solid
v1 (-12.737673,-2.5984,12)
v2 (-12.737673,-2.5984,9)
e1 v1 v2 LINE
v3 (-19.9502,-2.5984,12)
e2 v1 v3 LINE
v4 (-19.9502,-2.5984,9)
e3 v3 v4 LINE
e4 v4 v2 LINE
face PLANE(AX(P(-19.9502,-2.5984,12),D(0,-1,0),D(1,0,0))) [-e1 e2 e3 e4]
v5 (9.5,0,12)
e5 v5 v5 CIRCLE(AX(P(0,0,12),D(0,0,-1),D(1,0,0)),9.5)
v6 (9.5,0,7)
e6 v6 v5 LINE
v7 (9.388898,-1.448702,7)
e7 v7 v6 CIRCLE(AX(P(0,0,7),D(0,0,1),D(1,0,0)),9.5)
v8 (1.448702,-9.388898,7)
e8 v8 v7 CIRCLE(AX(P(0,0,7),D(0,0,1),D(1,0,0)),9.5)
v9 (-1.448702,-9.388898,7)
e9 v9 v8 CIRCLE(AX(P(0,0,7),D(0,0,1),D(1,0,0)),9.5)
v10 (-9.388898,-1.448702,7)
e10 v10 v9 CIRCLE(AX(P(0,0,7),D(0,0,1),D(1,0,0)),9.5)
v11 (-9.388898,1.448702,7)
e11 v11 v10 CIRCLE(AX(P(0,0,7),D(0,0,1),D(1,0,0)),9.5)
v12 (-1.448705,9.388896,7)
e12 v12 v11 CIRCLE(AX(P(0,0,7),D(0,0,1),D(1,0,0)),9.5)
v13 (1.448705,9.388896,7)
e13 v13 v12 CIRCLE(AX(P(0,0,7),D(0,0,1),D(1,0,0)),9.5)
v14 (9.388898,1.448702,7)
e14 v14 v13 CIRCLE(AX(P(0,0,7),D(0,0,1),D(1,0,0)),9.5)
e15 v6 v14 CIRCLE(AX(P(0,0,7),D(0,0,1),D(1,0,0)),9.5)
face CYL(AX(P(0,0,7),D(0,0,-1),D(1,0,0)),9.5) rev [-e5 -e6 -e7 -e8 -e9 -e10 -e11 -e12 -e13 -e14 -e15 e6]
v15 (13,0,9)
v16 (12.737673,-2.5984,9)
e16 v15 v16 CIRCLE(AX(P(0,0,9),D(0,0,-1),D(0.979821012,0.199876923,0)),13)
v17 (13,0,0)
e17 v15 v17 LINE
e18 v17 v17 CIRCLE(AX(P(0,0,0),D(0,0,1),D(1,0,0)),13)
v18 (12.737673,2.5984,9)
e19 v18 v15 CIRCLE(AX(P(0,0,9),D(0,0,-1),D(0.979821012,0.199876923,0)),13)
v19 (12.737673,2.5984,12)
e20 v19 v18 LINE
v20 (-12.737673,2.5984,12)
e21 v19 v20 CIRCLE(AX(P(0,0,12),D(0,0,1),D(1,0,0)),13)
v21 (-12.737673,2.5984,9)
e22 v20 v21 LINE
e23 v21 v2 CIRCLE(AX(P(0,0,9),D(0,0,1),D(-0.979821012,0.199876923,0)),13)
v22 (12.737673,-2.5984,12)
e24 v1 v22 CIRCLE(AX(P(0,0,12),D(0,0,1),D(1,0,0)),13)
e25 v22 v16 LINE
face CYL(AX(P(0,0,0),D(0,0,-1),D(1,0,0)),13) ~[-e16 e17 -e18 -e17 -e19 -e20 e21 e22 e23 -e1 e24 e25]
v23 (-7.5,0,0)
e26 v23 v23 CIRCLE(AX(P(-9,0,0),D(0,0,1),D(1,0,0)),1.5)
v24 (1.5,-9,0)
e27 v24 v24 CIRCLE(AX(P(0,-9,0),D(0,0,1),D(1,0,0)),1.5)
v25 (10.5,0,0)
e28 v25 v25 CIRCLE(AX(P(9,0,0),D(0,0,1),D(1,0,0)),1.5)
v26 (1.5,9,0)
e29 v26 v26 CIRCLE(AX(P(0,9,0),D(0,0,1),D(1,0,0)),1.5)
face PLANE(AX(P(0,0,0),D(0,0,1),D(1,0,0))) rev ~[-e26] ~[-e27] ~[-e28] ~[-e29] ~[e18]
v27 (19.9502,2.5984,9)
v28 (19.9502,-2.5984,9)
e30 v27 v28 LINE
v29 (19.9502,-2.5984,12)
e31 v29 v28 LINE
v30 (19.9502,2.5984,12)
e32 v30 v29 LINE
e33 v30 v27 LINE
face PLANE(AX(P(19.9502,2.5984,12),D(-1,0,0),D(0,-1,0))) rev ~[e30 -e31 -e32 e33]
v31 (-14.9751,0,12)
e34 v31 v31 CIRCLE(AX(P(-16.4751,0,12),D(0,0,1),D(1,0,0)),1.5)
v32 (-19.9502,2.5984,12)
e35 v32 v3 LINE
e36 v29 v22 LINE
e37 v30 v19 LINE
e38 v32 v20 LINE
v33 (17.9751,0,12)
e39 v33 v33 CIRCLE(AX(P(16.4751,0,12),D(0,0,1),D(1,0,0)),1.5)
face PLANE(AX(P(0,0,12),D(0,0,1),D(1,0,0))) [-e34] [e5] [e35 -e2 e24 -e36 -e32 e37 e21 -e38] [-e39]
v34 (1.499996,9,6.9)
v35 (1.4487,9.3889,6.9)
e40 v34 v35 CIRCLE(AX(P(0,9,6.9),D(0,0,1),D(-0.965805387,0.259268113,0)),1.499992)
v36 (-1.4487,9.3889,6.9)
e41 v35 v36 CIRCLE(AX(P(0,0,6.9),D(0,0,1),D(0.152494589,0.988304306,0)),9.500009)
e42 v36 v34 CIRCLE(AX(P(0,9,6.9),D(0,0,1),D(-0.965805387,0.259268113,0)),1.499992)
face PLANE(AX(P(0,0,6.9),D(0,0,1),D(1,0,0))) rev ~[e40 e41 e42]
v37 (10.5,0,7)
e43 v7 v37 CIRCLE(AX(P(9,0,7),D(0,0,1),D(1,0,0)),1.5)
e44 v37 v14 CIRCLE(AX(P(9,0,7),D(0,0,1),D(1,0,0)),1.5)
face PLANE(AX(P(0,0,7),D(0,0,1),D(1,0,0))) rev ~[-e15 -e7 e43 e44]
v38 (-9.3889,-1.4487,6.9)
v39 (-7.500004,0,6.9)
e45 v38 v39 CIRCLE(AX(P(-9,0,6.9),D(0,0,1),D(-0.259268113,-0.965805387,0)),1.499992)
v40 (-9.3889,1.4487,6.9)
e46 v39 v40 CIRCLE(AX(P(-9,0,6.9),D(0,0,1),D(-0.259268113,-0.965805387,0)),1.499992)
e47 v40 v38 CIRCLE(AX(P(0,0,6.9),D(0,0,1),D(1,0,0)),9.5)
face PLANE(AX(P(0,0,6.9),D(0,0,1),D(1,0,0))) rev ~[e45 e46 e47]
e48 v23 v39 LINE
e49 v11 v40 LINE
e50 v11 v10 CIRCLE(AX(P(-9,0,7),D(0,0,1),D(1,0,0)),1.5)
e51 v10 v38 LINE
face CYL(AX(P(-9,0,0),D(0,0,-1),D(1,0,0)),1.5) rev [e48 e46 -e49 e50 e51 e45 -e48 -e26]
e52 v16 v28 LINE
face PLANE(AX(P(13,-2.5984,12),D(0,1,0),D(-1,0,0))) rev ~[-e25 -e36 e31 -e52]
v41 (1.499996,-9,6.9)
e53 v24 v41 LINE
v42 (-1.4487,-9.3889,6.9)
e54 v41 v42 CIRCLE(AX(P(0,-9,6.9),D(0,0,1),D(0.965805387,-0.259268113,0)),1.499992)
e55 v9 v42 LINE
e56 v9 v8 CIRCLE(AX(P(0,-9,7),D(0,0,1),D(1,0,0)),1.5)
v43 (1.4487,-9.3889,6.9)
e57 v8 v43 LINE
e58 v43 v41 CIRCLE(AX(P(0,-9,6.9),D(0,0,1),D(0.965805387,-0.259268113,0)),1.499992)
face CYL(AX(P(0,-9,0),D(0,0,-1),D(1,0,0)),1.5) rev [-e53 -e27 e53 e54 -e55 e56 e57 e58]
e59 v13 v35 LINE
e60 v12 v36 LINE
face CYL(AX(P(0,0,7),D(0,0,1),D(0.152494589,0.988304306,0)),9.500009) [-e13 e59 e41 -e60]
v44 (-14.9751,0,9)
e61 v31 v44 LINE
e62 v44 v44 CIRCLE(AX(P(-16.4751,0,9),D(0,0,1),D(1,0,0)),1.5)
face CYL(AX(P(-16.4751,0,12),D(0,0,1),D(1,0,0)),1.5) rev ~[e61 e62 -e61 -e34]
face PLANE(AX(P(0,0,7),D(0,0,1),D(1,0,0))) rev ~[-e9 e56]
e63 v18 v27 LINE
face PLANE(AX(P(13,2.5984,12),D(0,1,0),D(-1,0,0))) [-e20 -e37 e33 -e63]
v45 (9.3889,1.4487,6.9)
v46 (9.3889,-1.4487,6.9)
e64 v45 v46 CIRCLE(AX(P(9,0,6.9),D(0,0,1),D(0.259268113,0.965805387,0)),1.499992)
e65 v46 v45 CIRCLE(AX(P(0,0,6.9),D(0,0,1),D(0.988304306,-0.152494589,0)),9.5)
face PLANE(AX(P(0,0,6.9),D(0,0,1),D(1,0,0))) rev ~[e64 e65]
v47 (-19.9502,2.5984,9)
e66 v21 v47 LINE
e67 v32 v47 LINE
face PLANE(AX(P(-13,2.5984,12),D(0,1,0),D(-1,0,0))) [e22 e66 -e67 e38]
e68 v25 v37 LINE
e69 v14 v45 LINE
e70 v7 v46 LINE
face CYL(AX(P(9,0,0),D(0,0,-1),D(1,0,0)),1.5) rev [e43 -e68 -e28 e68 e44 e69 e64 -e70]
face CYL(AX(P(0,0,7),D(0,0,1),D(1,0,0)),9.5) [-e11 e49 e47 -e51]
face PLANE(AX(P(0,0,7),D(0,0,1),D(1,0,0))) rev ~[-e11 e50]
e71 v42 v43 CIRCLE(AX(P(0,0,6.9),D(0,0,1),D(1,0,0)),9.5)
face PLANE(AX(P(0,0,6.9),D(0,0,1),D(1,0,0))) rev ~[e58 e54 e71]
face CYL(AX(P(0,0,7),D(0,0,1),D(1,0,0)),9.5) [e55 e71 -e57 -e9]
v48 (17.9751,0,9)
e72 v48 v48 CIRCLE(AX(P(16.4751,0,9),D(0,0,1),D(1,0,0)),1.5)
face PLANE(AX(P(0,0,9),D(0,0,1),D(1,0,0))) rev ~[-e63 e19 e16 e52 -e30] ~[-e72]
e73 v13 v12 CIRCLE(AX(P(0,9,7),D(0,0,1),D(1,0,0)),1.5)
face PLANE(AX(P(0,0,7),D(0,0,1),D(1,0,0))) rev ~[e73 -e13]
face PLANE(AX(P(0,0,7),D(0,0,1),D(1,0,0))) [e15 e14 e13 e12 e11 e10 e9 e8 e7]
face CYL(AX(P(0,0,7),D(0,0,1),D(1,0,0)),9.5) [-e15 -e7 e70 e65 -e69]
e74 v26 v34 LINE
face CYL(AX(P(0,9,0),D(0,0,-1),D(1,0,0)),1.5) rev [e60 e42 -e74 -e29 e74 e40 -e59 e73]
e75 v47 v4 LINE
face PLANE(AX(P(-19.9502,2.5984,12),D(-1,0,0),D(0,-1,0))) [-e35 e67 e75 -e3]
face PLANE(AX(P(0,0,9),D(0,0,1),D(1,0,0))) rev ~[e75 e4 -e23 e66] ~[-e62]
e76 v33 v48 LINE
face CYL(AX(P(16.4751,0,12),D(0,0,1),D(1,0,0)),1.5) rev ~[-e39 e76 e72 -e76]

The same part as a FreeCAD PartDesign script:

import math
import FreeCAD as App
import Part
import Sketcher

V = App.Vector

doc = App.newDocument("Part")
body = doc.addObject("PartDesign::Body", "Body")

# Sketch on XY plane
sketch1 = body.newObject("Sketcher::SketchObject", "Sketch")
sketch1.AttachmentSupport = (doc.getObject("XY_Plane"), [""])
sketch1.MapMode = "FlatFace"
sketch1.addGeometry([
    Part.Circle(V(0, 0, 0), V(0, 0, 1), 13),  # 0
    Part.Circle(V(0, -9, 0), V(0, 0, 1), 1.5),  # 1
    Part.Circle(V(-9, 0, 0), V(0, 0, 1), 1.5),  # 2
    Part.Circle(V(9, 0, 0), V(0, 0, 1), 1.5),  # 3
    Part.Circle(V(0, 9, 0), V(0, 0, 1), 1.5),  # 4
], False)
sketch1.addConstraint([
    Sketcher.Constraint("Coincident", 0, 3, -1, 1),
    Sketcher.Constraint("Equal", 1, 2),
    Sketcher.Constraint("Equal", 2, 3),
    Sketcher.Constraint("Equal", 3, 4),
    Sketcher.Constraint("Symmetric", 2, 3, 3, 3, -1, 1),
    Sketcher.Constraint("Symmetric", 1, 3, 4, 3, -1, 1),
    Sketcher.Constraint("PointOnObject", 1, 3, -2),
    Sketcher.Constraint("PointOnObject", 2, 3, -1),
    Sketcher.Constraint("Diameter", 0, 26.0),
    Sketcher.Constraint("Diameter", 1, 3.0),
    Sketcher.Constraint("DistanceY", 1, 3, -1, 1, 9.0),
    Sketcher.Constraint("DistanceX", 2, 3, -1, 1, 9.0),
])
pad1 = body.newObject("PartDesign::Pad", "Pad")
pad1.Profile = sketch1
pad1.Length = 7

# Sketch on XY plane
sketch2 = body.newObject("Sketcher::SketchObject", "Sketch001")
sketch2.AttachmentSupport = (doc.getObject("XY_Plane"), [""])
sketch2.MapMode = "FlatFace"
sketch2.AttachmentOffset = App.Placement(V(0, 0, 7), App.Rotation())
sketch2.addGeometry([
    Part.Circle(V(0, 0, 0), V(0, 0, 1), 13),
    Part.Circle(V(0, 0, 0), V(0, 0, 1), 10),
], False)
sketch2.addConstraint([
    Sketcher.Constraint("Coincident", 0, 3, -1, 1),
    Sketcher.Constraint("Coincident", 1, 3, -1, 1),
    Sketcher.Constraint("Diameter", 1, 19.0),
    Sketcher.Constraint("Diameter", 0, 26.0),
])
pad2 = body.newObject("PartDesign::Pad", "Pad001")
pad2.Profile = sketch2
pad2.Length = 5

# Sketch on XY plane
sketch3 = body.newObject("Sketcher::SketchObject", "Sketch002")
sketch3.AttachmentSupport = (doc.getObject("XY_Plane"), [""])
sketch3.MapMode = "FlatFace"
sketch3.AttachmentOffset = App.Placement(V(0, 0, 7), App.Rotation())
sketch3.addGeometry([
    Part.ArcOfCircle(Part.Circle(V(0, 0, 0), V(0, 0, 1), 9.5), math.radians(81.23), math.radians(98.77)),  # 0
    Part.ArcOfCircle(Part.Circle(V(0, 9, 0), V(0, 0, 1), 1.5), math.radians(165), math.radians(375)),  # 1
    Part.ArcOfCircle(Part.Circle(V(-9, 0, 0), V(0, 0, 1), 1.5), math.radians(-105), math.radians(105)),  # 2
    Part.ArcOfCircle(Part.Circle(V(0, 0, 0), V(0, 0, 1), 9.5), math.radians(171.23), math.radians(188.77)),  # 3
    Part.ArcOfCircle(Part.Circle(V(0, 0, 0), V(0, 0, 1), 9.5), math.radians(-8.77), math.radians(8.77)),  # 4
    Part.ArcOfCircle(Part.Circle(V(9, 0, 0), V(0, 0, 1), 1.5), math.radians(75), math.radians(285)),  # 5
    Part.ArcOfCircle(Part.Circle(V(0, -9, 0), V(0, 0, 1), 1.5), math.radians(-15), math.radians(195)),  # 6
    Part.ArcOfCircle(Part.Circle(V(0, 0, 0), V(0, 0, 1), 9.5), math.radians(-98.77), math.radians(-81.23)),  # 7
], False)
sketch3.addConstraint([
    Sketcher.Constraint("Coincident", 0, 1, 1, 2),
    Sketcher.Constraint("Coincident", 1, 1, 0, 2),
    Sketcher.Constraint("Coincident", 2, 1, 3, 2),
    Sketcher.Constraint("Coincident", 3, 1, 2, 2),
    Sketcher.Constraint("Coincident", 4, 1, 5, 2),
    Sketcher.Constraint("Coincident", 5, 1, 4, 2),
    Sketcher.Constraint("Coincident", 6, 1, 7, 2),
    Sketcher.Constraint("Coincident", 7, 1, 6, 2),
    Sketcher.Constraint("Coincident", 0, 3, -1, 1),
    Sketcher.Constraint("Coincident", 3, 3, -1, 1),
    Sketcher.Constraint("Coincident", 4, 3, -1, 1),
    Sketcher.Constraint("Coincident", 7, 3, -1, 1),
    Sketcher.Constraint("Equal", 1, 2),
    Sketcher.Constraint("Equal", 0, 3),
    Sketcher.Constraint("Equal", 3, 4),
    Sketcher.Constraint("Equal", 2, 5),
    Sketcher.Constraint("Equal", 5, 6),
    Sketcher.Constraint("Equal", 4, 7),
    Sketcher.Constraint("Symmetric", 2, 3, 5, 3, -1, 1),
    Sketcher.Constraint("Symmetric", 1, 3, 6, 3, -1, 1),
    Sketcher.Constraint("PointOnObject", 1, 3, -2),
    Sketcher.Constraint("PointOnObject", 2, 3, -1),
    Sketcher.Constraint("Radius", 0, 9.5),
    Sketcher.Constraint("Radius", 1, 1.5),
    Sketcher.Constraint("DistanceY", -1, 1, 1, 3, 9.0),
    Sketcher.Constraint("DistanceX", 2, 3, -1, 1, 9.0),
])
pad3 = body.newObject("PartDesign::Pad", "Pad002")
pad3.Profile = sketch3
pad3.Length = 0.1
pad3.Reversed = True

# Sketch on XY plane
sketch4 = body.newObject("Sketcher::SketchObject", "Sketch003")
sketch4.AttachmentSupport = (doc.getObject("XY_Plane"), [""])
sketch4.MapMode = "FlatFace"
sketch4.AttachmentOffset = App.Placement(V(0, 0, 12), App.Rotation())
sketch4.addGeometry([
    Part.LineSegment(V(-20, 2.6, 0), V(-20, -2.6, 0)),  # 0
    Part.LineSegment(V(-20, -2.6, 0), V(-12.7, -2.6, 0)),  # 1
    Part.ArcOfCircle(Part.Circle(V(0, 0, 0), V(0, 0, 1), 13), math.radians(168), math.radians(192)),  # 2
    Part.LineSegment(V(-12.7, 2.6, 0), V(-20, 2.6, 0)),  # 3
    Part.Circle(V(-16.5, 0, 0), V(0, 0, 1), 1.5),  # 4
    Part.LineSegment(V(12.7, -2.6, 0), V(20, -2.6, 0)),  # 5
    Part.LineSegment(V(20, -2.6, 0), V(20, 2.6, 0)),  # 6
    Part.LineSegment(V(20, 2.6, 0), V(12.7, 2.6, 0)),  # 7
    Part.ArcOfCircle(Part.Circle(V(0, 0, 0), V(0, 0, 1), 13), math.radians(-12), math.radians(12)),  # 8
    Part.Circle(V(16.5, 0, 0), V(0, 0, 1), 1.5),  # 9
], False)
sketch4.addConstraint([
    Sketcher.Constraint("Coincident", 0, 2, 1, 1),
    Sketcher.Constraint("Coincident", 1, 2, 2, 2),
    Sketcher.Constraint("Coincident", 2, 1, 3, 1),
    Sketcher.Constraint("Coincident", 3, 2, 0, 1),
    Sketcher.Constraint("Coincident", 5, 2, 6, 1),
    Sketcher.Constraint("Coincident", 6, 2, 7, 1),
    Sketcher.Constraint("Coincident", 7, 2, 8, 2),
    Sketcher.Constraint("Coincident", 8, 1, 5, 1),
    Sketcher.Constraint("Vertical", 0),
    Sketcher.Constraint("Horizontal", 1),
    Sketcher.Constraint("Horizontal", 3),
    Sketcher.Constraint("Horizontal", 5),
    Sketcher.Constraint("Vertical", 6),
    Sketcher.Constraint("Horizontal", 7),
    Sketcher.Constraint("Coincident", 2, 3, -1, 1),
    Sketcher.Constraint("Coincident", 8, 3, -1, 1),
    Sketcher.Constraint("Equal", 2, 8),
    Sketcher.Constraint("Equal", 4, 9),
    Sketcher.Constraint("Symmetric", 4, 3, 9, 3, -1, 1),
    Sketcher.Constraint("Symmetric", 3, 2, 5, 2, -1, 1),
    Sketcher.Constraint("PointOnObject", 4, 3, -1),
    Sketcher.Constraint("Horizontal", 1, 2, 5, 2),
    Sketcher.Constraint("Horizontal", 3, 2, 6, 2),
    Sketcher.Constraint("Diameter", 4, 3.0),
    Sketcher.Constraint("Radius", 2, 13.0),
    Sketcher.Constraint("DistanceX", 1, 1, 1, 2, 7.2125),
    Sketcher.Constraint("DistanceY", 0, 2, 0, 1, 5.1968),
    Sketcher.Constraint("DistanceX", 4, 3, -1, 1, 16.475),
])
pad4 = body.newObject("PartDesign::Pad", "Pad003")
pad4.Profile = sketch4
pad4.Length = 3
pad4.Reversed = True

doc.recompute()
